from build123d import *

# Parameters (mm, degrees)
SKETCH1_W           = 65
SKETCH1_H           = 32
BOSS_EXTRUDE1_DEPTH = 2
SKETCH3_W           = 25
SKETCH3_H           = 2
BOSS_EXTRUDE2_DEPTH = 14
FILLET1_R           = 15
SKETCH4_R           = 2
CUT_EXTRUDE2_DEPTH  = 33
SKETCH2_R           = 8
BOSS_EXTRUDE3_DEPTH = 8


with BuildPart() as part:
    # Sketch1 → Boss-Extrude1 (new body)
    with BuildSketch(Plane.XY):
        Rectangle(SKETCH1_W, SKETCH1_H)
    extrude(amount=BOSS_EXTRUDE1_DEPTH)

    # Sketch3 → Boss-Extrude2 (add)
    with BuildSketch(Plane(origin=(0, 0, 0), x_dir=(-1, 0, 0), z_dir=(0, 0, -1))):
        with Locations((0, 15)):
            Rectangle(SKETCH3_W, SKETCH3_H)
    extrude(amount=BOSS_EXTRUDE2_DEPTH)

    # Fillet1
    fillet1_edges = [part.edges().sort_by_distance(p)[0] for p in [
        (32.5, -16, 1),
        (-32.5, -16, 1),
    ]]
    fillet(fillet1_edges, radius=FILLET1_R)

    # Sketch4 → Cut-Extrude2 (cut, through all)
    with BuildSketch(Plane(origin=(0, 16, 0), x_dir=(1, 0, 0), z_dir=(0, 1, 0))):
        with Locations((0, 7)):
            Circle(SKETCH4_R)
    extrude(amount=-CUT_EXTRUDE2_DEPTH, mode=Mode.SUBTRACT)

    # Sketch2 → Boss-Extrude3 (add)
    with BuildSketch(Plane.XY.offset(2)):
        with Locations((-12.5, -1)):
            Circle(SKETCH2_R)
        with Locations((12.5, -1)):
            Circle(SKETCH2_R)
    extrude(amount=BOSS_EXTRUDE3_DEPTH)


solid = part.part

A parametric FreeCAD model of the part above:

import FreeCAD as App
import Part
import Sketcher
from FreeCAD import Vector
Q = App.Units.Quantity


def edges_at(feature, points):
    """Names of the edges that pass closest to the given points."""
    edges = feature.Shape.Edges
    near = lambda p: min(range(len(edges)), key=lambda i: edges[i].distToShape(Part.Vertex(*p))[0])
    return sorted({f"Edge{near(p) + 1}" for p in points})


def add_polygon(sketch, points):
    """Adds a closed chain of lines whose ends are joined by coincident constraints."""
    first, n = sketch.GeometryCount, len(points)
    for a, b in zip(points, points[1:] + points[:1]):
        sketch.addGeometry(Part.LineSegment(App.Vector(*a, 0), App.Vector(*b, 0)), False)
    for i in range(n):
        sketch.addConstraint(Sketcher.Constraint("Coincident", first + i, 2, first + (i + 1) % n, 1))

doc = App.newDocument("Part")
body = doc.addObject("PartDesign::Body", "Body")

# Sketch on XY plane
sketch1 = body.newObject("Sketcher::SketchObject", "Sketch")
sketch1.AttachmentSupport = (doc.getObject("XY_Plane"), [""])
sketch1.MapMode = "FlatFace"
add_polygon(sketch1, [(-32.5, 16), (-32.5, -16), (32.5, -16), (32.5, 16)])  # lines 0-3
sketch1.addConstraint([
    Sketcher.Constraint("Vertical", 0),
    Sketcher.Constraint("Horizontal", 1),
    Sketcher.Constraint("Vertical", 2),
    Sketcher.Constraint("Horizontal", 3),
    Sketcher.Constraint("Symmetric", 0, 2, 2, 2, -1, 1),
    Sketcher.Constraint("DistanceX", 1, 1, 1, 2, Q("65 mm")),
    Sketcher.Constraint("DistanceY", 0, 2, 0, 1, Q("32 mm")),
])
pad1 = body.newObject("PartDesign::Pad", "Pad")
pad1.Profile = sketch1
pad1.Length = 2

# Sketch on XY plane
sketch2 = body.newObject("Sketcher::SketchObject", "Sketch001")
sketch2.AttachmentSupport = (doc.getObject("XY_Plane"), [""])
sketch2.MapMode = "FlatFace"
add_polygon(sketch2, [(12.5, 16), (12.5, 14), (-12.5, 14), (-12.5, 16)])  # lines 0-3
sketch2.addConstraint([
    Sketcher.Constraint("Vertical", 0),
    Sketcher.Constraint("Horizontal", 1),
    Sketcher.Constraint("Vertical", 2),
    Sketcher.Constraint("Horizontal", 3),
    Sketcher.Constraint("DistanceX", 1, 2, 1, 1, Q("25 mm")),
    Sketcher.Constraint("DistanceY", 0, 2, 0, 1, Q("2 mm")),
    Sketcher.Constraint("DistanceY", -1, 1, 0, 2, Q("14 mm")),
    Sketcher.Constraint("DistanceX", -1, 1, 0, 2, Q("12.5 mm")),
])
pad2 = body.newObject("PartDesign::Pad", "Pad001")
pad2.Profile = sketch2
pad2.Length = 14
pad2.Reversed = True
doc.recompute()

fillet = body.newObject("PartDesign::Fillet", "Fillet")
fillet.Base = (pad2, edges_at(pad2, [(32.5, -16, 1), (-32.5, -16, 1)]))
fillet.Radius = 15

# Sketch on XZ plane
sketch3 = body.newObject("Sketcher::SketchObject", "Sketch002")
sketch3.AttachmentSupport = (doc.getObject("XZ_Plane"), [""])
sketch3.MapMode = "FlatFace"
sketch3.AttachmentOffset = App.Placement(Vector(0, 0, -16), App.Rotation())
sketch3.addGeometry(Part.Circle(Vector(0, -7, 0), Vector(0, 0, 1), 2), False)
sketch3.addConstraint([
    Sketcher.Constraint("PointOnObject", 0, 3, -2),
    Sketcher.Constraint("Diameter", 0, Q("4 mm")),
    Sketcher.Constraint("DistanceY", 0, 3, -1, 1, Q("7 mm")),
])
pocket1 = body.newObject("PartDesign::Pocket", "Pocket")
pocket1.Profile = sketch3
pocket1.Type = "ThroughAll"
pocket1.Reversed = True

# Sketch on XY plane
sketch4 = body.newObject("Sketcher::SketchObject", "Sketch003")
sketch4.AttachmentSupport = (doc.getObject("XY_Plane"), [""])
sketch4.MapMode = "FlatFace"
sketch4.AttachmentOffset = App.Placement(Vector(0, 0, 2), App.Rotation())
sketch4.addGeometry([
    Part.Circle(Vector(-12.5, -1, 0), Vector(0, 0, 1), 8),
    Part.Circle(Vector(12.5, -1, 0), Vector(0, 0, 1), 8),
], False)
sketch4.addConstraint([
    Sketcher.Constraint("Equal", 0, 1),
    Sketcher.Constraint("Symmetric", 0, 3, 1, 3, -2),
    Sketcher.Constraint("Diameter", 0, Q("16 mm")),
    Sketcher.Constraint("DistanceY", 0, 3, -1, 1, Q("1 mm")),
    Sketcher.Constraint("DistanceX", 0, 3, 1, 3, Q("25 mm")),
])
pad3 = body.newObject("PartDesign::Pad", "Pad002")
pad3.Profile = sketch4
pad3.Length = 8

doc.recompute()
